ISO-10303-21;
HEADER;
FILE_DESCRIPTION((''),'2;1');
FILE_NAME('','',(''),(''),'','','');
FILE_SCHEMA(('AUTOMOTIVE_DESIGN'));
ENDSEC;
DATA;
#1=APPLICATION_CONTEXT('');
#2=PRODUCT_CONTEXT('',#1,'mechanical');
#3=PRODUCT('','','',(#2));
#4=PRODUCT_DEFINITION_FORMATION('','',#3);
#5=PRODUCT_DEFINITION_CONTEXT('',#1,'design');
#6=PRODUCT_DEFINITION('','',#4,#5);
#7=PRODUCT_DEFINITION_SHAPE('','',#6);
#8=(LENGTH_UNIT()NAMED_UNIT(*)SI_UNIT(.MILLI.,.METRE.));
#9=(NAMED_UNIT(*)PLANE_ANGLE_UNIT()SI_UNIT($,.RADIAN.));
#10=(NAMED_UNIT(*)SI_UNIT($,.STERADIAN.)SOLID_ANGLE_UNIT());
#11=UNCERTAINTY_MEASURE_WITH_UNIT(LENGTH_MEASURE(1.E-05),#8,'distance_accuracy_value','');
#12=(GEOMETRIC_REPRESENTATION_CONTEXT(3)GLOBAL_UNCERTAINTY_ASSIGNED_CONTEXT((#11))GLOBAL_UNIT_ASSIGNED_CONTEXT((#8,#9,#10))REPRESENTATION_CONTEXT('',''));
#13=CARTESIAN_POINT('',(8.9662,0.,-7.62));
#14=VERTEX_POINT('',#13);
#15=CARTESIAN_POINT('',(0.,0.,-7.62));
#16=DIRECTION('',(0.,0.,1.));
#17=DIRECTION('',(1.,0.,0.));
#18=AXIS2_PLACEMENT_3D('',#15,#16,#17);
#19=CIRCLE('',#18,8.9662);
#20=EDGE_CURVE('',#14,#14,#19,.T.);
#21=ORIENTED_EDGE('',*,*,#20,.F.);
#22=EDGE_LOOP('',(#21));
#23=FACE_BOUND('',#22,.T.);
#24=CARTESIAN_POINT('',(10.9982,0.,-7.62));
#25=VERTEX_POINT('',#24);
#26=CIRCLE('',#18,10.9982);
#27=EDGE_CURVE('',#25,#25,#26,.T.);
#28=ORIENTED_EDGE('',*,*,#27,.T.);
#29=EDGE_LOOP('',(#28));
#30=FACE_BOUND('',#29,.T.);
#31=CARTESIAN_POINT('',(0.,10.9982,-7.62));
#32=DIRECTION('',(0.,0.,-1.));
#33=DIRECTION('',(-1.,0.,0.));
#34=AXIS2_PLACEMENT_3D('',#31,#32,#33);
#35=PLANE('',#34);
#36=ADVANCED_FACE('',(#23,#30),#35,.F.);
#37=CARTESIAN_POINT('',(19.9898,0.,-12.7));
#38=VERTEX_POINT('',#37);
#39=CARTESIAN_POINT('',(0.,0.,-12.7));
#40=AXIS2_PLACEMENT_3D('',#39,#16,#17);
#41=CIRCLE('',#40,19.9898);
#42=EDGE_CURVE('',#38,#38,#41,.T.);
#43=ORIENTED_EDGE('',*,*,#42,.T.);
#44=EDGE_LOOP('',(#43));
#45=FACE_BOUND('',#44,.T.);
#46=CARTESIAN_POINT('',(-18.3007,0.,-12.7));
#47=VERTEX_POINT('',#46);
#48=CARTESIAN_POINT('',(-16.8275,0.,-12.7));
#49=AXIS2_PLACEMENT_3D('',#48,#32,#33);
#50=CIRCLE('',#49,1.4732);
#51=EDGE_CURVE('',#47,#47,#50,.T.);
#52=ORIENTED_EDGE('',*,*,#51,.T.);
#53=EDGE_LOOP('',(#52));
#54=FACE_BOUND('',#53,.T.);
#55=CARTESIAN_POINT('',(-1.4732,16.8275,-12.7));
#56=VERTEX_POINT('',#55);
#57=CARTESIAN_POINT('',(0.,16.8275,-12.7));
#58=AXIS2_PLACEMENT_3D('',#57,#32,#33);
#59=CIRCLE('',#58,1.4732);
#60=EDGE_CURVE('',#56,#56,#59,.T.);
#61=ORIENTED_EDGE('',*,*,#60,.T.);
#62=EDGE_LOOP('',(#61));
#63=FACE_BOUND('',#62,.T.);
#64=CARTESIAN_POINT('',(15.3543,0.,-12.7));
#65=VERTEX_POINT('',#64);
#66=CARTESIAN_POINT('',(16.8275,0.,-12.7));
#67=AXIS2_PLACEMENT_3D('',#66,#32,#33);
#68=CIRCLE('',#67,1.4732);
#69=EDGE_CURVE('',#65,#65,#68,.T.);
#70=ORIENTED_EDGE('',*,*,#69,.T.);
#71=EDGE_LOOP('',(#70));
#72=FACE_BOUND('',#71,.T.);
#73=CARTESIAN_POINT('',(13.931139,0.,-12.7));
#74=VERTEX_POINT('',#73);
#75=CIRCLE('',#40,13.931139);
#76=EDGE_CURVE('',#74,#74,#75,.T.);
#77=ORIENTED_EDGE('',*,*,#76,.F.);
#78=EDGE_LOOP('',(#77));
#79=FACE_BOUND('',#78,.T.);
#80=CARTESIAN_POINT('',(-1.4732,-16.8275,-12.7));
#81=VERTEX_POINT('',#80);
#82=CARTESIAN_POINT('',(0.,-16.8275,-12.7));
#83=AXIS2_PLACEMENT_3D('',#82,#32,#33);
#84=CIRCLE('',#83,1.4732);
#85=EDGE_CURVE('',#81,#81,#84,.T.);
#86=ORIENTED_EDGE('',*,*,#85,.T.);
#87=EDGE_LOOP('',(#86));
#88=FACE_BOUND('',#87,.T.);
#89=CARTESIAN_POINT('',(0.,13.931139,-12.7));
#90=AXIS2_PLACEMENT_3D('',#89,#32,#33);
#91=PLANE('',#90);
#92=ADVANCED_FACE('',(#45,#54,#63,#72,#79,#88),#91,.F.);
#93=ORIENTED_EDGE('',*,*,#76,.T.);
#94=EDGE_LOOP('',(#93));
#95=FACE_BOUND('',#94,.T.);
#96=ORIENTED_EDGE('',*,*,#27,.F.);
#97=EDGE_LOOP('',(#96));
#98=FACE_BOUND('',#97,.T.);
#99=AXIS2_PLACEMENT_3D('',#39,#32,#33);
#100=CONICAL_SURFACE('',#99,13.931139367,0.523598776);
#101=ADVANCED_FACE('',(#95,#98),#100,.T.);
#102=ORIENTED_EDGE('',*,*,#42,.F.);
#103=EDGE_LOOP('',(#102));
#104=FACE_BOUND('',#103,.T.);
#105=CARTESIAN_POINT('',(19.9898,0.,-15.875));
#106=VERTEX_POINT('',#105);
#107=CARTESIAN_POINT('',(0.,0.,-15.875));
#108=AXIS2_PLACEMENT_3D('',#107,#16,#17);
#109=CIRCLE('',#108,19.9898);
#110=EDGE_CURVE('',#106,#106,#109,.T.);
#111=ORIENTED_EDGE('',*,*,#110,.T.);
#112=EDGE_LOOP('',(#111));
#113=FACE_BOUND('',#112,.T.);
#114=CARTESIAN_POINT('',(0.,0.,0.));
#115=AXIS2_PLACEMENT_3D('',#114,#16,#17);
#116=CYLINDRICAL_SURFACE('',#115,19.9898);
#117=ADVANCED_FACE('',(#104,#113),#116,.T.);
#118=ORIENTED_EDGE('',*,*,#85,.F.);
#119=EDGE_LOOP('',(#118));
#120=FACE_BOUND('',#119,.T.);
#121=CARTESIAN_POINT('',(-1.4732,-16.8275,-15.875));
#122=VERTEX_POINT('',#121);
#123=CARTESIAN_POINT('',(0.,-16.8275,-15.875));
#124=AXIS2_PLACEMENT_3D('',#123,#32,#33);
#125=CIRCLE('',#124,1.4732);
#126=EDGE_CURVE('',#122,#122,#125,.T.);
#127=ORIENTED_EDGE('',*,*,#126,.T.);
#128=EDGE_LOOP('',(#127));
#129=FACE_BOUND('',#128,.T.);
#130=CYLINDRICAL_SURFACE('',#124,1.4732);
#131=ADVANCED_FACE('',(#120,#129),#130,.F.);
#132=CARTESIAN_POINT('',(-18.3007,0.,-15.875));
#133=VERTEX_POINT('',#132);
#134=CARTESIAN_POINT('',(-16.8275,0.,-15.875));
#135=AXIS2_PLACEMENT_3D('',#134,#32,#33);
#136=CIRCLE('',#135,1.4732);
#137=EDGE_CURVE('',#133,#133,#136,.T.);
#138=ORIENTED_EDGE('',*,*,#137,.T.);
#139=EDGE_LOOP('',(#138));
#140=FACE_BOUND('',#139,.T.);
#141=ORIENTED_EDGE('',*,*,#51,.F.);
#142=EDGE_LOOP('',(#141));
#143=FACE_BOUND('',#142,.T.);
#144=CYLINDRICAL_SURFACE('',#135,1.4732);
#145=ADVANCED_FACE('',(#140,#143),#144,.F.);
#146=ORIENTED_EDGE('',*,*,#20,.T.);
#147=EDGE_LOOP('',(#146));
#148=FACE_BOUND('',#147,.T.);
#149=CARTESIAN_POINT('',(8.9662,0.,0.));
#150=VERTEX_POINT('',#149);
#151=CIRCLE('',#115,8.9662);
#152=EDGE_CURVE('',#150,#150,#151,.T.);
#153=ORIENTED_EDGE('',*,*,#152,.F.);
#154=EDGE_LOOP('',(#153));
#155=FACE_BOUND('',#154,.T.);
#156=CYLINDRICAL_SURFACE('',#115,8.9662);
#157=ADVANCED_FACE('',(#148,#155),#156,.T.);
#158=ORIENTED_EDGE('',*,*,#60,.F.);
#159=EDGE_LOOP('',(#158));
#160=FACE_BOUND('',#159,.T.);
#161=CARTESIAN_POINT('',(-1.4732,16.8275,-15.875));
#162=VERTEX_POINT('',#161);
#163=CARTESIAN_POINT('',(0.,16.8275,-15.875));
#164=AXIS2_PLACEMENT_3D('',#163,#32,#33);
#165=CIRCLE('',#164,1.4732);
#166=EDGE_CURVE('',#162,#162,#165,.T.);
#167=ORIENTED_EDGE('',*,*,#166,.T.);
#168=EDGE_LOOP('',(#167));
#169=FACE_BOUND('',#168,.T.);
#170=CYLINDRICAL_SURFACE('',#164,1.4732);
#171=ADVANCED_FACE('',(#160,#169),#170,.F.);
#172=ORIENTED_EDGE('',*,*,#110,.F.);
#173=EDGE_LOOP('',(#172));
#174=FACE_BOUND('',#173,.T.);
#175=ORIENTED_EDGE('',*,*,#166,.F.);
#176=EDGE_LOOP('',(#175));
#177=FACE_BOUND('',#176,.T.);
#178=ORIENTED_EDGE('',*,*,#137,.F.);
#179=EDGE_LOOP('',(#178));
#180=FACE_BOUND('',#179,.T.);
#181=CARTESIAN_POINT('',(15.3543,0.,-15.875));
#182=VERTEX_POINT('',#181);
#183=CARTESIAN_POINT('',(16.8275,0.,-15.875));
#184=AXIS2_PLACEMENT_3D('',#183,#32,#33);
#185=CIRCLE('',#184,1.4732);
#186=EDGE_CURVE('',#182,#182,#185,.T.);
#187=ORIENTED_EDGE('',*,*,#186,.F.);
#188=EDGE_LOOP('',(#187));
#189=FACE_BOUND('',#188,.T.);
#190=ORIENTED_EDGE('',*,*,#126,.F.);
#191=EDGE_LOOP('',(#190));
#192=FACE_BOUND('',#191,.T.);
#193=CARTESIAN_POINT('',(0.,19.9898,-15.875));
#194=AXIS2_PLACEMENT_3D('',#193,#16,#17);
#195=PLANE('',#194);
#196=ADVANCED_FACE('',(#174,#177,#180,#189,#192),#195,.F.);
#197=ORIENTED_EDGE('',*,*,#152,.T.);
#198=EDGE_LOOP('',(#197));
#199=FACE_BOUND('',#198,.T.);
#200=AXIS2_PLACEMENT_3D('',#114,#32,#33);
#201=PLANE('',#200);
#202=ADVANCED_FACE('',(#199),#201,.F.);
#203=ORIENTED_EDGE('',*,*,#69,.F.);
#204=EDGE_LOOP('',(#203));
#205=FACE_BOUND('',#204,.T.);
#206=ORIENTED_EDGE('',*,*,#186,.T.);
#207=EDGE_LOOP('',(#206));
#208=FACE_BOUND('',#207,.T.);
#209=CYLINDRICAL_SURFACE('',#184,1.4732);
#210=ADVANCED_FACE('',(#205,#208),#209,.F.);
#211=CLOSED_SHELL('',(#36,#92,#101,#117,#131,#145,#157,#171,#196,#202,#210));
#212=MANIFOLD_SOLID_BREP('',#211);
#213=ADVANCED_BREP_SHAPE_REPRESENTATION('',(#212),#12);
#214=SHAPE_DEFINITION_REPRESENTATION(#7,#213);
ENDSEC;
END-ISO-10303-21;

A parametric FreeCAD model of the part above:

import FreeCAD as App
import Part
import Sketcher
from FreeCAD import Vector
Q = App.Units.Quantity


def add_polygon(sketch, points):
    """Adds a closed chain of lines whose ends are joined by coincident constraints."""
    first, n = sketch.GeometryCount, len(points)
    for a, b in zip(points, points[1:] + points[:1]):
        sketch.addGeometry(Part.LineSegment(App.Vector(*a, 0), App.Vector(*b, 0)), False)
    for i in range(n):
        sketch.addConstraint(Sketcher.Constraint("Coincident", first + i, 2, first + (i + 1) % n, 1))

doc = App.newDocument("Part")
params = doc.addObject("Spreadsheet::Sheet", "Params")
for row, (alias, value) in enumerate([
    ("sketch1_height", "0.3 in"),
    ("sketch1_width", "0.08 in"),
    ("sketch1_width2", "0.787 in"),
    ("sketch1_width3", "0.353 in"),
    ("sketch1_height2", "0.625 in"),
    ("revolution_angle", "360 deg"),
    ("sketch2_diameter", "0.116 in"),
    ("hole_diameter", "0.116 in"),
], start=1):
    params.set(f"A{row}", alias)
    params.set(f"B{row}", "=" + value)
    params.setAlias(f"B{row}", alias)

body = doc.addObject("PartDesign::Body", "Body")

sketch1 = body.newObject("Sketcher::SketchObject", "Sketch")
sketch1.AttachmentSupport = (doc.getObject("YZ_Plane"), [""])
sketch1.MapMode = "FlatFace"
add_polygon(sketch1, [(0, 0), (0, -15.875), (19.9898, -15.875), (19.9898, -12.7), (13.931139, -12.7), (10.9982, -7.62), (8.9662, -7.62), (8.9662, 0)])
sketch1.addConstraint(Sketcher.Constraint("Vertical", 0))
sketch1.addConstraint(Sketcher.Constraint("Horizontal", 1))
sketch1.addConstraint(Sketcher.Constraint("Vertical", 2))
sketch1.addConstraint(Sketcher.Constraint("Horizontal", 3))
sketch1.addConstraint(Sketcher.Constraint("Horizontal", 5))
sketch1.addConstraint(Sketcher.Constraint("Vertical", 6))
sketch1.addConstraint(Sketcher.Constraint("Horizontal", 7))
sketch1.addConstraint(Sketcher.Constraint("Coincident", 7, 2, -1, 1))
sketch1.addConstraint(Sketcher.Constraint("DistanceY", 6, 1, 6, 2, Q("0.3 in")))
sketch1.addConstraint(Sketcher.Constraint("Angle", 4, Q("120 deg")))
sketch1.addConstraint(Sketcher.Constraint("DistanceX", 5, 2, 5, 1, Q("0.08 in")))
sketch1.addConstraint(Sketcher.Constraint("DistanceY", 2, 2, -1, 1, Q("0.5 in")))
sketch1.addConstraint(Sketcher.Constraint("DistanceX", 1, 1, 1, 2, Q("0.787 in")))
sketch1.addConstraint(Sketcher.Constraint("DistanceX", 7, 2, 7, 1, Q("0.353 in")))
sketch1.addConstraint(Sketcher.Constraint("DistanceY", 0, 2, 0, 1, Q("0.625 in")))
sketch1.setExpression("Constraints[16]", "Params.sketch1_height")
sketch1.setExpression("Constraints[18]", "Params.sketch1_width")
sketch1.setExpression("Constraints[20]", "Params.sketch1_width2")
sketch1.setExpression("Constraints[21]", "Params.sketch1_width3")
sketch1.setExpression("Constraints[22]", "Params.sketch1_height2")
revolution = body.newObject("PartDesign::Revolution", "Revolution")
revolution.Profile = sketch1
revolution.ReferenceAxis = (sketch1, ["V_Axis"])
revolution.setExpression("Angle", "Params.revolution_angle")

sketch2 = body.newObject("Sketcher::SketchObject", "Sketch001")
sketch2.AttachmentSupport = (doc.getObject("XY_Plane"), [""])
sketch2.MapMode = "FlatFace"
sketch2.AttachmentOffset = App.Placement(Vector(0, 0, -0.625 * 25.4), App.Rotation())
sketch2.addGeometry(Part.Circle(Vector(0, 16.8275, 0), Vector(0, 0, 1), 1.4732), False)
sketch2.addGeometry(Part.Circle(Vector(16.8275, 0, 0), Vector(0, 0, 1), 1.4732), False)
sketch2.addGeometry(Part.Circle(Vector(-16.8275, 0, 0), Vector(0, 0, 1), 1.4732), False)
sketch2.addGeometry(Part.Circle(Vector(0, -16.8275, 0), Vector(0, 0, 1), 1.4732), False)
sketch2.addConstraint(Sketcher.Constraint("Equal", 0, 1))
sketch2.addConstraint(Sketcher.Constraint("Equal", 1, 2))
sketch2.addConstraint(Sketcher.Constraint("Equal", 2, 3))
sketch2.addConstraint(Sketcher.Constraint("Symmetric", 1, 3, 2, 3, -1, 1))
sketch2.addConstraint(Sketcher.Constraint("Symmetric", 0, 3, 3, 3, -1, 1))
sketch2.addConstraint(Sketcher.Constraint("PointOnObject", 0, 3, -2))
sketch2.addConstraint(Sketcher.Constraint("PointOnObject", 1, 3, -1))
sketch2.addConstraint(Sketcher.Constraint("Diameter", 0, Q("0.116 in")))
sketch2.addConstraint(Sketcher.Constraint("DistanceX", 2, 3, 1, 3, Q("1.325 in")))
sketch2.addConstraint(Sketcher.Constraint("DistanceY", 3, 3, 0, 3, Q("1.325 in")))
sketch2.setExpression("Constraints[7]", "Params.sketch2_diameter")
doc.recompute()
hole = body.newObject("PartDesign::Hole", "Hole")
hole.Profile = sketch2
hole.ThreadType = "None"
hole.setExpression("Diameter", "Params.hole_diameter")
hole.DepthType = "ThroughAll"
hole.Reversed = True

doc.recompute()
